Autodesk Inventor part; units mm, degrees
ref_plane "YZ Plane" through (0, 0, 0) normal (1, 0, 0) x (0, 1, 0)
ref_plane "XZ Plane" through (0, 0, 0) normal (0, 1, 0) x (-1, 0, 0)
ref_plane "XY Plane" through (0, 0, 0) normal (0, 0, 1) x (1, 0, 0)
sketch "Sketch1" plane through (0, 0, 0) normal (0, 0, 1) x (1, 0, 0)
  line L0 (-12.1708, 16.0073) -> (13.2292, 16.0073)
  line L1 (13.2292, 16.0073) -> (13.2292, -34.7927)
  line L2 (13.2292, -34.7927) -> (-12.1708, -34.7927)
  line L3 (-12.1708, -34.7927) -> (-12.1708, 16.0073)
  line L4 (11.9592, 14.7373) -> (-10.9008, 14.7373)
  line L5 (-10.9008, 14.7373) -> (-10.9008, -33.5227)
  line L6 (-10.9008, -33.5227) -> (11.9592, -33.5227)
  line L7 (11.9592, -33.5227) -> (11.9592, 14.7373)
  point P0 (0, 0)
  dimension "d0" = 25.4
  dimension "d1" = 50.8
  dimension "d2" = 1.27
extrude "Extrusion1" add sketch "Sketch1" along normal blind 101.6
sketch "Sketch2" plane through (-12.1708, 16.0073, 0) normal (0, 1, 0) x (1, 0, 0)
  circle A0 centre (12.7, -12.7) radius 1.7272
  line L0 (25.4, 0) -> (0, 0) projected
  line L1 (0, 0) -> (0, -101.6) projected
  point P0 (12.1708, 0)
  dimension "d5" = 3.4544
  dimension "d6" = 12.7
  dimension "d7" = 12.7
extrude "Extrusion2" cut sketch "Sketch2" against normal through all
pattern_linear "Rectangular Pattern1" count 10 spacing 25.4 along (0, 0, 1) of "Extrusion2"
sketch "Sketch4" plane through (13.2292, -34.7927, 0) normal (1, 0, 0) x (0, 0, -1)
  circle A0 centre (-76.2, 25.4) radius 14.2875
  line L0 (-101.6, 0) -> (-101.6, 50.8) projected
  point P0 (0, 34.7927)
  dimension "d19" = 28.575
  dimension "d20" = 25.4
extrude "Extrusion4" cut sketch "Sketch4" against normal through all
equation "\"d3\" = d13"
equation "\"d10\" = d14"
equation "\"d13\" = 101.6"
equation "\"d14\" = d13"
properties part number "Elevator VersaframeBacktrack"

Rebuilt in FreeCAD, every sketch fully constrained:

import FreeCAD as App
import Part
import Sketcher
Q = App.Units.Quantity

doc = App.newDocument("Part")
body = doc.addObject("PartDesign::Body", "Body")

sketch1 = doc.addObject("Sketcher::SketchObject", "Sketch")
body.addObject(sketch1)
sketch1.AttachmentSupport = (doc.XY_Plane, [""])
sketch1.MapMode = "FlatFace"
sketch1.addGeometry(Part.LineSegment(App.Vector(13, 16, 0), App.Vector(-12, 16, 0)), False)
sketch1.addGeometry(Part.LineSegment(App.Vector(-12, 16, 0), App.Vector(-12, -35, 0)), False)
sketch1.addGeometry(Part.LineSegment(App.Vector(-12, -35, 0), App.Vector(13, -35, 0)), False)
sketch1.addGeometry(Part.LineSegment(App.Vector(13, -35, 0), App.Vector(13, 16, 0)), False)
sketch1.addGeometry(Part.LineSegment(App.Vector(-11, 15, 0), App.Vector(12, 15, 0)), False)
sketch1.addGeometry(Part.LineSegment(App.Vector(12, 15, 0), App.Vector(12, -34, 0)), False)
sketch1.addGeometry(Part.LineSegment(App.Vector(12, -34, 0), App.Vector(-11, -34, 0)), False)
sketch1.addGeometry(Part.LineSegment(App.Vector(-11, -34, 0), App.Vector(-11, 15, 0)), False)
sketch1.addConstraint(Sketcher.Constraint("Coincident", 0, 2, 1, 1))
sketch1.addConstraint(Sketcher.Constraint("Coincident", 1, 2, 2, 1))
sketch1.addConstraint(Sketcher.Constraint("Coincident", 2, 2, 3, 1))
sketch1.addConstraint(Sketcher.Constraint("Coincident", 3, 2, 0, 1))
sketch1.addConstraint(Sketcher.Constraint("Coincident", 4, 2, 5, 1))
sketch1.addConstraint(Sketcher.Constraint("Coincident", 5, 2, 6, 1))
sketch1.addConstraint(Sketcher.Constraint("Coincident", 6, 2, 7, 1))
sketch1.addConstraint(Sketcher.Constraint("Coincident", 7, 2, 4, 1))
sketch1.addConstraint(Sketcher.Constraint("Horizontal", 0))
sketch1.addConstraint(Sketcher.Constraint("Vertical", 1))
sketch1.addConstraint(Sketcher.Constraint("Horizontal", 2))
sketch1.addConstraint(Sketcher.Constraint("Vertical", 3))
sketch1.addConstraint(Sketcher.Constraint("Horizontal", 4))
sketch1.addConstraint(Sketcher.Constraint("Vertical", 5))
sketch1.addConstraint(Sketcher.Constraint("Horizontal", 6))
sketch1.addConstraint(Sketcher.Constraint("Vertical", 7))
sketch1.addConstraint(Sketcher.Constraint("DistanceX", 0, 2, 0, 1, Q("1 in")))
sketch1.addConstraint(Sketcher.Constraint("DistanceY", 1, 2, 1, 1, Q("2 in")))
sketch1.addConstraint(Sketcher.Constraint("DistanceX", 4, 2, 3, 2, Q("0.05 in")))
sketch1.addConstraint(Sketcher.Constraint("DistanceY", 4, 2, 3, 2, Q("0.05 in")))
sketch1.addConstraint(Sketcher.Constraint("DistanceY", 2, 2, 5, 2, Q("0.05 in")))
sketch1.addConstraint(Sketcher.Constraint("DistanceX", 1, 2, 6, 2, Q("0.05 in")))
sketch1.addConstraint(Sketcher.Constraint("DistanceY", -1, 1, 0, 2, Q("0.6302 in")))
sketch1.addConstraint(Sketcher.Constraint("DistanceX", 0, 2, -1, 1, Q("12.1708 mm")))
pad1 = doc.addObject("PartDesign::Pad", "Pad")
body.addObject(pad1)
pad1.Profile = sketch1
pad1.Length = Q("4 in")

sketch2 = doc.addObject("Sketcher::SketchObject", "Sketch001")
body.addObject(sketch2)
sketch2.AttachmentSupport = (doc.XZ_Plane, [""])
sketch2.MapMode = "FlatFace"
sketch2.AttachmentOffset = App.Placement(App.Vector(0, 0, -0.6302087 * 25.4), App.Rotation())
sketch2.addGeometry(Part.Circle(App.Vector(0.5, 12.7, 0), App.Vector(0, 0, 1), 1.7), False)
sketch2.addConstraint(Sketcher.Constraint("Diameter", 0, Q("0.136 in")))
sketch2.addConstraint(Sketcher.Constraint("DistanceY", -1, 1, 0, 3, Q("0.5 in")))
sketch2.addConstraint(Sketcher.Constraint("DistanceX", -1, 1, 0, 3, Q("0.5292 mm")))
pocket1 = doc.addObject("PartDesign::Pocket", "Pocket")
body.addObject(pocket1)
pocket1.Profile = sketch2
pocket1.Type = "ThroughAll"
pocket1.Reversed = True
doc.recompute()

linearpattern = doc.addObject("PartDesign::LinearPattern", "LinearPattern")
body.addObject(linearpattern)
linearpattern.Originals = [pocket1]
linearpattern.Direction = (doc.Z_Axis, [""])
linearpattern.Mode = "offset"
linearpattern.Offset = Q("1 in")
linearpattern.Occurrences = 10
body.Tip = linearpattern

sketch3 = doc.addObject("Sketcher::SketchObject", "Sketch002")
body.addObject(sketch3)
sketch3.AttachmentSupport = (doc.YZ_Plane, [""])
sketch3.MapMode = "FlatFace"
sketch3.AttachmentOffset = App.Placement(App.Vector(0, 0, 13.2292), App.Rotation())
sketch3.addGeometry(Part.Circle(App.Vector(-9, 76, 0), App.Vector(0, 0, 1), 14), False)
sketch3.addConstraint(Sketcher.Constraint("Diameter", 0, Q("1.125 in")))
sketch3.addConstraint(Sketcher.Constraint("DistanceY", -1, 1, 0, 3, Q("3 in")))
sketch3.addConstraint(Sketcher.Constraint("DistanceX", 0, 3, -1, 1, Q("0.3698 in")))
pocket2 = doc.addObject("PartDesign::Pocket", "Pocket001")
body.addObject(pocket2)
pocket2.Profile = sketch3
pocket2.Type = "ThroughAll"

doc.recompute()
